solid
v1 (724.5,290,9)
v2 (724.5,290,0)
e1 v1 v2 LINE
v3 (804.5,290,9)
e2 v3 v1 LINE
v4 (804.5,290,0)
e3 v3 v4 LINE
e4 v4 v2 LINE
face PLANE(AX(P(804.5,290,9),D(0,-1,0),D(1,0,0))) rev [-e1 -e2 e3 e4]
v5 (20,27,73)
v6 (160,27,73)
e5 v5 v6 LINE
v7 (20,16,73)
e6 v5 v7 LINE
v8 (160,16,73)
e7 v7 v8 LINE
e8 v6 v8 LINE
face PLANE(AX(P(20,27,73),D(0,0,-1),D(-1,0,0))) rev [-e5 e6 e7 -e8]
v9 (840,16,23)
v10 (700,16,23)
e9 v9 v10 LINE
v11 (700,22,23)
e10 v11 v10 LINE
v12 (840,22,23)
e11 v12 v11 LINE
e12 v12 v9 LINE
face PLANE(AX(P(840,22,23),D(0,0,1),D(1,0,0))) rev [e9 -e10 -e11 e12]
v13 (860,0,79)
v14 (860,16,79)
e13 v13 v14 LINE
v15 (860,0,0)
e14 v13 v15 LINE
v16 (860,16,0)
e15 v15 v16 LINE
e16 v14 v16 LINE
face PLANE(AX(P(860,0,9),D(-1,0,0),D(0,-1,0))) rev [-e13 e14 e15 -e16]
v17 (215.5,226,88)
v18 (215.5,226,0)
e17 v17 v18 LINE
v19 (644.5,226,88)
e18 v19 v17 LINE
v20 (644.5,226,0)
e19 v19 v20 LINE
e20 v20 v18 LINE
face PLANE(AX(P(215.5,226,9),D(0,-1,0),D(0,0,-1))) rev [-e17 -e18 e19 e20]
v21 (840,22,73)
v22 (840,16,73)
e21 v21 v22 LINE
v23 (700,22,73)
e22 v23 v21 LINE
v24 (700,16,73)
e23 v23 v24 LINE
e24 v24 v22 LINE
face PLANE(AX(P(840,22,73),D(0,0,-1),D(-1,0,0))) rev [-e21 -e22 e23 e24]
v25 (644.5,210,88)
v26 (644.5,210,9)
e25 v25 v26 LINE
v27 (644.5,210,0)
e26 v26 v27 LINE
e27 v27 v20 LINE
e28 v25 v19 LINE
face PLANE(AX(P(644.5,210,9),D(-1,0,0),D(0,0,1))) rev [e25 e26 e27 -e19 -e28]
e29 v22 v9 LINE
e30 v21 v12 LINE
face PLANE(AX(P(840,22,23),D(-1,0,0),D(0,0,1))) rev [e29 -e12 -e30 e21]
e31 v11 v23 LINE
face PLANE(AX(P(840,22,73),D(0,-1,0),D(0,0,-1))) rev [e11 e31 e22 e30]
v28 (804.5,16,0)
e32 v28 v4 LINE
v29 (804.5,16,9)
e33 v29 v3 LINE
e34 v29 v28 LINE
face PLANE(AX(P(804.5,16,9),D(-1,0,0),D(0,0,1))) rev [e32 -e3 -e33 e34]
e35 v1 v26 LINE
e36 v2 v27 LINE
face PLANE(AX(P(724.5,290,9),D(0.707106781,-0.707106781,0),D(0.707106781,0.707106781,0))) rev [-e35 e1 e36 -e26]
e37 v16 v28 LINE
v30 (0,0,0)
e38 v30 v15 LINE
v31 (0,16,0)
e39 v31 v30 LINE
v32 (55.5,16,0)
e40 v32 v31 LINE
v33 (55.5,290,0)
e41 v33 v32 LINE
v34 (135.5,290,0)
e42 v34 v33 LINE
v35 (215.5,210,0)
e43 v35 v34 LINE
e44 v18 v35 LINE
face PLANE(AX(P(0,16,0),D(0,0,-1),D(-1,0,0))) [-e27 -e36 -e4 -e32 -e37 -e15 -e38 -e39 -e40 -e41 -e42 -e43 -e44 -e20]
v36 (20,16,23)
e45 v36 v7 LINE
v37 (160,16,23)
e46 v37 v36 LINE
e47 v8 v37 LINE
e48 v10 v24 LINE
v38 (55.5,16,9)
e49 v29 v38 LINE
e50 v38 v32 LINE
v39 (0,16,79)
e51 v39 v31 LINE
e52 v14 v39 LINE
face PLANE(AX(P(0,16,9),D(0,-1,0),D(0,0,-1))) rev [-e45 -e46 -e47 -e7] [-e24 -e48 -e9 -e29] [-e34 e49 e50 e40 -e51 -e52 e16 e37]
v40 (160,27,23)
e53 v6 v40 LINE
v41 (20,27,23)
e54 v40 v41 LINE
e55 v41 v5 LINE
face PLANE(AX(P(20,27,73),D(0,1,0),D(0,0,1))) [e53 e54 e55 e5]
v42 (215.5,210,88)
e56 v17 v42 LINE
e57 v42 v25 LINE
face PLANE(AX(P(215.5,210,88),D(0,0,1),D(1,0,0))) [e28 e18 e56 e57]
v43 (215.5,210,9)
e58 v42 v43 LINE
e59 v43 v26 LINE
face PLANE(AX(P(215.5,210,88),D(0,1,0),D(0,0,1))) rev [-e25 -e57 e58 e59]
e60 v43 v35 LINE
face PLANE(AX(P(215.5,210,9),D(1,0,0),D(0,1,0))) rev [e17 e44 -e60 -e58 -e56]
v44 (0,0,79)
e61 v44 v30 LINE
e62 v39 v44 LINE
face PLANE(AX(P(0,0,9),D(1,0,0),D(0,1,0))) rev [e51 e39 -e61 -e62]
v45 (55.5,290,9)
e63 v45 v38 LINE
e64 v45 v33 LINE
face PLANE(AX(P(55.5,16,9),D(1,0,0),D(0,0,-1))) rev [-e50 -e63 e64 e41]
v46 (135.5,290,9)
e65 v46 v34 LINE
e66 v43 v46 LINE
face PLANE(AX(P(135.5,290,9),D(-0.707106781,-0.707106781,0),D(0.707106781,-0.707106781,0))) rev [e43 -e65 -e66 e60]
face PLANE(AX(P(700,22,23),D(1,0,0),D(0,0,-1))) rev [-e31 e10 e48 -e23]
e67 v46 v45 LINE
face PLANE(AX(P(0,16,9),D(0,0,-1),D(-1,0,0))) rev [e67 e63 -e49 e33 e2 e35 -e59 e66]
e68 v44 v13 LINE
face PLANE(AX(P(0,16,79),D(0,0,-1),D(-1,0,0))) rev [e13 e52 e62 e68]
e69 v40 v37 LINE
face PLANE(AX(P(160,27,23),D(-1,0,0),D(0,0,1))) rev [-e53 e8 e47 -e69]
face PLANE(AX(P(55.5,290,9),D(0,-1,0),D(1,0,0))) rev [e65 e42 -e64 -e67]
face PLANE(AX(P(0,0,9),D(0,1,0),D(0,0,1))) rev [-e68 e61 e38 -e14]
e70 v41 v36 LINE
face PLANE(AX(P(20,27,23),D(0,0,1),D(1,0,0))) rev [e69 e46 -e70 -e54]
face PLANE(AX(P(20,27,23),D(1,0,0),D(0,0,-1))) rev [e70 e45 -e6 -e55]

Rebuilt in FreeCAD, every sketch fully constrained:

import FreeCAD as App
import Part
import Sketcher

doc = App.newDocument("Part")
body = doc.addObject("PartDesign::Body", "Body")

sketch1 = doc.addObject("Sketcher::SketchObject", "Sketch")
body.addObject(sketch1)
sketch1.AttachmentSupport = (doc.XY_Plane, [""])
sketch1.MapMode = "FlatFace"
sketch1.addGeometry([
    Part.LineSegment(App.Vector(0, 0, 0), App.Vector(860, 0, 0)),
    Part.LineSegment(App.Vector(860, 0, 0), App.Vector(860, 16, 0)),
    Part.LineSegment(App.Vector(860, 16, 0), App.Vector(804.5, 16, 0)),
    Part.LineSegment(App.Vector(804.5, 16, 0), App.Vector(804.5, 290, 0)),
    Part.LineSegment(App.Vector(804.5, 290, 0), App.Vector(724.5, 290, 0)),
    Part.LineSegment(App.Vector(724.5, 290, 0), App.Vector(644.5, 210, 0)),
    Part.LineSegment(App.Vector(644.5, 210, 0), App.Vector(644.5, 226, 0)),
    Part.LineSegment(App.Vector(644.5, 226, 0), App.Vector(215.5, 226, 0)),
    Part.LineSegment(App.Vector(215.5, 226, 0), App.Vector(215.5, 210, 0)),
    Part.LineSegment(App.Vector(215.5, 210, 0), App.Vector(135.5, 290, 0)),
    Part.LineSegment(App.Vector(135.5, 290, 0), App.Vector(55.5, 290, 0)),
    Part.LineSegment(App.Vector(55.5, 290, 0), App.Vector(55.5, 16, 0)),
    Part.LineSegment(App.Vector(55.5, 16, 0), App.Vector(0, 16, 0)),
    Part.LineSegment(App.Vector(0, 16, 0), App.Vector(0, 0, 0)),
], False)
sketch1.addConstraint([
    Sketcher.Constraint("Coincident", 0, 2, 1, 1),
    Sketcher.Constraint("Coincident", 1, 2, 2, 1),
    Sketcher.Constraint("Coincident", 2, 2, 3, 1),
    Sketcher.Constraint("Coincident", 3, 2, 4, 1),
    Sketcher.Constraint("Coincident", 4, 2, 5, 1),
    Sketcher.Constraint("Coincident", 5, 2, 6, 1),
    Sketcher.Constraint("Coincident", 6, 2, 7, 1),
    Sketcher.Constraint("Coincident", 7, 2, 8, 1),
    Sketcher.Constraint("Coincident", 8, 2, 9, 1),
    Sketcher.Constraint("Coincident", 9, 2, 10, 1),
    Sketcher.Constraint("Coincident", 10, 2, 11, 1),
    Sketcher.Constraint("Coincident", 11, 2, 12, 1),
    Sketcher.Constraint("Coincident", 12, 2, 13, 1),
    Sketcher.Constraint("Coincident", 13, 2, 0, 1),
    Sketcher.Constraint("Horizontal", 0),
    Sketcher.Constraint("Vertical", 1),
    Sketcher.Constraint("Horizontal", 2),
    Sketcher.Constraint("Vertical", 3),
    Sketcher.Constraint("Horizontal", 4),
    Sketcher.Constraint("Vertical", 6),
    Sketcher.Constraint("Horizontal", 7),
    Sketcher.Constraint("Vertical", 8),
    Sketcher.Constraint("Horizontal", 10),
    Sketcher.Constraint("Vertical", 11),
    Sketcher.Constraint("Horizontal", 12),
    Sketcher.Constraint("Vertical", 13),
    Sketcher.Constraint("Coincident", 13, 2, -1, 1),
    Sketcher.Constraint("Perpendicular", 5, 9),
    Sketcher.Constraint("Horizontal", 5, 2, 8, 2),
    Sketcher.Constraint("Horizontal", 4, 2, 9, 2),
    Sketcher.Constraint("Horizontal", 2, 2, 11, 2),
    Sketcher.Constraint("Equal", 4, 10),
    Sketcher.Constraint("Equal", 2, 12),
    Sketcher.Constraint("Equal", 1, 6),
    Sketcher.Constraint("Equal", 5, 9),
    Sketcher.Constraint("DistanceX", 0, 1, 0, 2, 860.0),
    Sketcher.Constraint("DistanceX", 4, 2, 4, 1, 80.0),
    Sketcher.Constraint("DistanceX", 7, 2, 7, 1, 429.0),
    Sketcher.Constraint("DistanceY", 1, 1, 1, 2, 16.0),
    Sketcher.Constraint("DistanceY", 3, 1, 3, 2, 274.0),
    Sketcher.Constraint("DistanceX", 2, 2, 2, 1, 55.5),
])
pad1 = doc.addObject("PartDesign::Pad", "Pad")
body.addObject(pad1)
pad1.Profile = sketch1
pad1.Length = 9

sketch2 = doc.addObject("Sketcher::SketchObject", "Sketch001")
body.addObject(sketch2)
sketch2.AttachmentSupport = (doc.XY_Plane, [""])
sketch2.MapMode = "FlatFace"
sketch2.AttachmentOffset = App.Placement(App.Vector(0, 0, 9), App.Rotation())
sketch2.addGeometry([
    Part.LineSegment(App.Vector(0, 16, 0), App.Vector(0, 0, 0)),
    Part.LineSegment(App.Vector(0, 0, 0), App.Vector(860, 0, 0)),
    Part.LineSegment(App.Vector(860, 0, 0), App.Vector(860, 16, 0)),
    Part.LineSegment(App.Vector(860, 16, 0), App.Vector(0, 16, 0)),
], False)
sketch2.addConstraint([
    Sketcher.Constraint("Coincident", 0, 2, 1, 1),
    Sketcher.Constraint("Coincident", 1, 2, 2, 1),
    Sketcher.Constraint("Coincident", 2, 2, 3, 1),
    Sketcher.Constraint("Coincident", 3, 2, 0, 1),
    Sketcher.Constraint("Vertical", 0),
    Sketcher.Constraint("Horizontal", 1),
    Sketcher.Constraint("Vertical", 2),
    Sketcher.Constraint("Horizontal", 3),
    Sketcher.Constraint("Coincident", 0, 2, -1, 1),
    Sketcher.Constraint("DistanceX", 1, 1, 1, 2, 860.0),
    Sketcher.Constraint("DistanceY", 0, 2, 0, 1, 16.0),
])
pad2 = doc.addObject("PartDesign::Pad", "Pad001")
body.addObject(pad2)
pad2.Profile = sketch2
pad2.Length = 70

sketch3 = doc.addObject("Sketcher::SketchObject", "Sketch002")
body.addObject(sketch3)
sketch3.AttachmentSupport = (doc.XZ_Plane, [""])
sketch3.MapMode = "FlatFace"
sketch3.AttachmentOffset = App.Placement(App.Vector(0, 0, -16), App.Rotation())
sketch3.addGeometry([
    Part.LineSegment(App.Vector(20, 23, 0), App.Vector(20, 73, 0)),
    Part.LineSegment(App.Vector(20, 73, 0), App.Vector(160, 73, 0)),
    Part.LineSegment(App.Vector(160, 73, 0), App.Vector(160, 23, 0)),
    Part.LineSegment(App.Vector(160, 23, 0), App.Vector(20, 23, 0)),
], False)
sketch3.addConstraint([
    Sketcher.Constraint("Coincident", 0, 2, 1, 1),
    Sketcher.Constraint("Coincident", 1, 2, 2, 1),
    Sketcher.Constraint("Coincident", 2, 2, 3, 1),
    Sketcher.Constraint("Coincident", 3, 2, 0, 1),
    Sketcher.Constraint("Vertical", 0),
    Sketcher.Constraint("Horizontal", 1),
    Sketcher.Constraint("Vertical", 2),
    Sketcher.Constraint("Horizontal", 3),
    Sketcher.Constraint("DistanceX", 1, 1, 1, 2, 140.0),
    Sketcher.Constraint("DistanceY", 0, 1, 0, 2, 50.0),
    Sketcher.Constraint("DistanceX", -1, 1, 0, 2, 20.0),
    Sketcher.Constraint("DistanceY", -1, 1, 0, 2, 73.0),
])
pad3 = doc.addObject("PartDesign::Pad", "Pad002")
body.addObject(pad3)
pad3.Profile = sketch3
pad3.Length = 11
pad3.Reversed = True

sketch4 = doc.addObject("Sketcher::SketchObject", "Sketch003")
body.addObject(sketch4)
sketch4.AttachmentSupport = (doc.XZ_Plane, [""])
sketch4.MapMode = "FlatFace"
sketch4.AttachmentOffset = App.Placement(App.Vector(0, 0, -16), App.Rotation())
sketch4.addGeometry([
    Part.LineSegment(App.Vector(700, 23, 0), App.Vector(700, 73, 0)),
    Part.LineSegment(App.Vector(700, 73, 0), App.Vector(840, 73, 0)),
    Part.LineSegment(App.Vector(840, 73, 0), App.Vector(840, 23, 0)),
    Part.LineSegment(App.Vector(840, 23, 0), App.Vector(700, 23, 0)),
], False)
sketch4.addConstraint([
    Sketcher.Constraint("Coincident", 0, 2, 1, 1),
    Sketcher.Constraint("Coincident", 1, 2, 2, 1),
    Sketcher.Constraint("Coincident", 2, 2, 3, 1),
    Sketcher.Constraint("Coincident", 3, 2, 0, 1),
    Sketcher.Constraint("Vertical", 0),
    Sketcher.Constraint("Horizontal", 1),
    Sketcher.Constraint("Vertical", 2),
    Sketcher.Constraint("Horizontal", 3),
    Sketcher.Constraint("DistanceX", 1, 1, 1, 2, 140.0),
    Sketcher.Constraint("DistanceY", 0, 1, 0, 2, 50.0),
    Sketcher.Constraint("DistanceX", -1, 1, 0, 2, 700.0),
    Sketcher.Constraint("DistanceY", -1, 1, 0, 2, 73.0),
])
pad4 = doc.addObject("PartDesign::Pad", "Pad003")
body.addObject(pad4)
pad4.Profile = sketch4
pad4.Length = 6
pad4.Reversed = True

sketch5 = doc.addObject("Sketcher::SketchObject", "Sketch004")
body.addObject(sketch5)
sketch5.AttachmentSupport = (doc.XY_Plane, [""])
sketch5.MapMode = "FlatFace"
sketch5.AttachmentOffset = App.Placement(App.Vector(0, 0, 9), App.Rotation())
sketch5.addGeometry([
    Part.LineSegment(App.Vector(215.5, 226, 0), App.Vector(215.5, 210, 0)),
    Part.LineSegment(App.Vector(215.5, 210, 0), App.Vector(644.5, 210, 0)),
    Part.LineSegment(App.Vector(644.5, 210, 0), App.Vector(644.5, 226, 0)),
    Part.LineSegment(App.Vector(644.5, 226, 0), App.Vector(215.5, 226, 0)),
], False)
sketch5.addConstraint([
    Sketcher.Constraint("Coincident", 0, 2, 1, 1),
    Sketcher.Constraint("Coincident", 1, 2, 2, 1),
    Sketcher.Constraint("Coincident", 2, 2, 3, 1),
    Sketcher.Constraint("Coincident", 3, 2, 0, 1),
    Sketcher.Constraint("Vertical", 0),
    Sketcher.Constraint("Horizontal", 1),
    Sketcher.Constraint("Vertical", 2),
    Sketcher.Constraint("Horizontal", 3),
    Sketcher.Constraint("DistanceX", 1, 1, 1, 2, 429.0),
    Sketcher.Constraint("DistanceY", 0, 2, 0, 1, 16.0),
    Sketcher.Constraint("DistanceY", -1, 1, 0, 2, 210.0),
    Sketcher.Constraint("DistanceX", -1, 1, 0, 2, 215.5),
])
pad5 = doc.addObject("PartDesign::Pad", "Pad004")
body.addObject(pad5)
pad5.Profile = sketch5
pad5.Length = 79

doc.recompute()
